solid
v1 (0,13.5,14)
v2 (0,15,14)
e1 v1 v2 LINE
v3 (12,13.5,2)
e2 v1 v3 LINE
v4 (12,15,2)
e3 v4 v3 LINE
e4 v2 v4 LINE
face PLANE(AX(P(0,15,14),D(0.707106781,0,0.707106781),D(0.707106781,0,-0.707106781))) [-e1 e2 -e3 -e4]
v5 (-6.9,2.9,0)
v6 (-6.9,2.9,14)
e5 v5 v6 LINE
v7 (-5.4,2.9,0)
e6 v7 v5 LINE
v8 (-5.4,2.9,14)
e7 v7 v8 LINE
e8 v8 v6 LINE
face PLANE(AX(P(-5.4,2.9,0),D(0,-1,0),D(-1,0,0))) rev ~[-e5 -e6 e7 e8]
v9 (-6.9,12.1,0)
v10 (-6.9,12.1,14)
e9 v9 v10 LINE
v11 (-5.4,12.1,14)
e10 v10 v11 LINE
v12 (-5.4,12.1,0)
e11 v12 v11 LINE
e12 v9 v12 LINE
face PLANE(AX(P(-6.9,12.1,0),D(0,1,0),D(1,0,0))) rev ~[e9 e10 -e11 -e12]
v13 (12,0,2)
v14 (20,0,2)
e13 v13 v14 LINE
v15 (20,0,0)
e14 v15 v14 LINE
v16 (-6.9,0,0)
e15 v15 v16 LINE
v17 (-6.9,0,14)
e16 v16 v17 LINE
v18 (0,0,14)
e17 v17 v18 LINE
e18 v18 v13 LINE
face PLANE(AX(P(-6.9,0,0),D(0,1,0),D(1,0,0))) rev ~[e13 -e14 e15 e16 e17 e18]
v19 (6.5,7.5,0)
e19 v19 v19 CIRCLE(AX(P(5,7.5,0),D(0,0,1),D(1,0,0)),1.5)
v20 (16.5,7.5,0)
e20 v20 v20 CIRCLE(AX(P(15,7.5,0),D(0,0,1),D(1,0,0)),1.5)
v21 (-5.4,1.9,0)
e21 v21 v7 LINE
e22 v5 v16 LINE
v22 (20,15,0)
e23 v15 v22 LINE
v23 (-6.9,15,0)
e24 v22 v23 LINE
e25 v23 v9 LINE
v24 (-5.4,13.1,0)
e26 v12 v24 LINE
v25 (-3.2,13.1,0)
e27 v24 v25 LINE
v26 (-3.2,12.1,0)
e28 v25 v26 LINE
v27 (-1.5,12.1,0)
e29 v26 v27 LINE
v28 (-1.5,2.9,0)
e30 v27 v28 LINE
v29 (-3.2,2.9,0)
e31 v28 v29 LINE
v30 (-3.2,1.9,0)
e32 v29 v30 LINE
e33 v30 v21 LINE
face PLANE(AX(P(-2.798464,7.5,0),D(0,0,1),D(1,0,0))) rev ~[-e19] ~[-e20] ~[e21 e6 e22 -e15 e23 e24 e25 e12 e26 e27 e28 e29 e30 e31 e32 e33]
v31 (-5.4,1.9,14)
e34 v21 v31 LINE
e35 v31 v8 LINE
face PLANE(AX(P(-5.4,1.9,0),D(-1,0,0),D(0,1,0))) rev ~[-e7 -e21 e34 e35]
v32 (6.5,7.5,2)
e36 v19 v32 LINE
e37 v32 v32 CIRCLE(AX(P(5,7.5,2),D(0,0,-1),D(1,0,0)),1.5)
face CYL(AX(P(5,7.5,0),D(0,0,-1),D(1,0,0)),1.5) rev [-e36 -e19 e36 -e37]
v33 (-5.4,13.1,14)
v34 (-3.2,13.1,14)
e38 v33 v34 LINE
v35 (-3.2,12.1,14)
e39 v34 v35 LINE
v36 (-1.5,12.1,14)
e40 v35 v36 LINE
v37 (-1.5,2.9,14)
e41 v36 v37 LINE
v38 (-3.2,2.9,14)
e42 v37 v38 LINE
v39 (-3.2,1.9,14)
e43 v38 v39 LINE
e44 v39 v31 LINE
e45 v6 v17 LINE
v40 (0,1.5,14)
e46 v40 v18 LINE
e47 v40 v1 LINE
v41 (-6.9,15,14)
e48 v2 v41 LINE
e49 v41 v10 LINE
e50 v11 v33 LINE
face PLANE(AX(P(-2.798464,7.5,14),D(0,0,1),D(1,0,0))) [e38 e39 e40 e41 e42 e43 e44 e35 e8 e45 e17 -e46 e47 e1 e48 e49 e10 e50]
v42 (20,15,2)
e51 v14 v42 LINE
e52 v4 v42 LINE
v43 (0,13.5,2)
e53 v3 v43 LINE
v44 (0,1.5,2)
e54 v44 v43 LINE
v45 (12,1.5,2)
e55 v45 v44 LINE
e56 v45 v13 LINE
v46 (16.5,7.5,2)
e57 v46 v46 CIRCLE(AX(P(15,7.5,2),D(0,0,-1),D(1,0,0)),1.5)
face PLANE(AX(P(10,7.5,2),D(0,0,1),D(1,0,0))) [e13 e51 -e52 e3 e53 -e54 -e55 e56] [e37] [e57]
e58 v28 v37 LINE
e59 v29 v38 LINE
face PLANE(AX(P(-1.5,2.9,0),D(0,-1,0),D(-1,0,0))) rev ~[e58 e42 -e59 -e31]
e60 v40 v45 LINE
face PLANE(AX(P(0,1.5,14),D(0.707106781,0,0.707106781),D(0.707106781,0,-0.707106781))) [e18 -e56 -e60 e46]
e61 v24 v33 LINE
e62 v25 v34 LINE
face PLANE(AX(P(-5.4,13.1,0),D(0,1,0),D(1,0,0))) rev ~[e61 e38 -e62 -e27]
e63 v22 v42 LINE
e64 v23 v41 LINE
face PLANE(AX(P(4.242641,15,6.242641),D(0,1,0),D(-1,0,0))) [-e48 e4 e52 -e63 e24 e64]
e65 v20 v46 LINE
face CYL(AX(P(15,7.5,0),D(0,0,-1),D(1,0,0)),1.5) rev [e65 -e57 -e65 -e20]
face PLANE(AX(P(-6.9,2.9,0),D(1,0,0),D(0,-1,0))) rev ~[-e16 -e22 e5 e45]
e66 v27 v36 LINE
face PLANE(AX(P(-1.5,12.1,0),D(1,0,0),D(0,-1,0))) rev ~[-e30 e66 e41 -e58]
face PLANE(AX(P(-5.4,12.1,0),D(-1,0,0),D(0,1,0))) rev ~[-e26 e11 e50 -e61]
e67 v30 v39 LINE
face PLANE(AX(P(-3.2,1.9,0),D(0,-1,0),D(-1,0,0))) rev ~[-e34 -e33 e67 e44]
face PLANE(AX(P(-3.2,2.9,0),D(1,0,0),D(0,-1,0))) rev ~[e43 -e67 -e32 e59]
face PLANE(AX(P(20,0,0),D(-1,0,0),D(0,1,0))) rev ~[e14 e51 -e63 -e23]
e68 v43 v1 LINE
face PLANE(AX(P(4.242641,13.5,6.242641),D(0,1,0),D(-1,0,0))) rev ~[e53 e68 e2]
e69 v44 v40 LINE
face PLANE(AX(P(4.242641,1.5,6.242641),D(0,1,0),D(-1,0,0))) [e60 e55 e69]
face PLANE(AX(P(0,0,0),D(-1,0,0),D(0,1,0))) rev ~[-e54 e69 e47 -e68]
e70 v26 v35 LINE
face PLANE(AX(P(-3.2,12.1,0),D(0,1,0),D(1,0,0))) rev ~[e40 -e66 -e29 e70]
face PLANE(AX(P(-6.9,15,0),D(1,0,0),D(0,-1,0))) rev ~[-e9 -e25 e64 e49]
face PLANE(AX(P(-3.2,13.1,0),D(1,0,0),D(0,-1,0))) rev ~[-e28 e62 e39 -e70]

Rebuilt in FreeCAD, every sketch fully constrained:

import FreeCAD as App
import Part
import Sketcher


def add_polygon(sketch, points):
    """Adds a closed chain of lines whose ends are joined by coincident constraints."""
    first, n = sketch.GeometryCount, len(points)
    for a, b in zip(points, points[1:] + points[:1]):
        sketch.addGeometry(Part.LineSegment(App.Vector(*a, 0), App.Vector(*b, 0)), False)
    for i in range(n):
        sketch.addConstraint(Sketcher.Constraint("Coincident", first + i, 2, first + (i + 1) % n, 1))

doc = App.newDocument("Part")
params = doc.addObject("Spreadsheet::Sheet", "Params")
for row, (alias, value) in enumerate([
    ("sketch1_diameter", "3 mm"),
    ("pad1_length", "10 mm"),
    ("sketch2_diameter", "3 mm"),
    ("pad2_length", "10 mm"),
    ("sketch3_width", "20 mm"),
    ("sketch3_height", "15 mm"),
    ("pad3_length", "2 mm"),
    ("sketch4_height", "1 mm"),
    ("sketch4_height2", "15 mm"),
    ("sketch4_width", "6.9 mm"),
    ("sketch4_width2", "1.5 mm"),
    ("sketch4_width3", "2.2 mm"),
    ("pad4_length", "14 mm"),
    ("sketch5_width", "12 mm"),
    ("pad5_length", "1.5 mm"),
    ("sketch6_width", "12 mm"),
    ("pad6_length", "1.5 mm"),
], start=1):
    params.set(f"A{row}", alias)
    params.set(f"B{row}", "=" + value)
    params.setAlias(f"B{row}", alias)

body = doc.addObject("PartDesign::Body", "Body")

# Sketch on XY plane
sketch1 = body.newObject("Sketcher::SketchObject", "Sketch")
sketch1.AttachmentSupport = (doc.getObject("XY_Plane"), [""])
sketch1.MapMode = "FlatFace"
sketch1.addGeometry(Part.Circle(App.Vector(15, 7.5, 0), App.Vector(0, 0, 1), 1.5), False)
sketch1.addConstraint([
    Sketcher.Constraint("Diameter", 0, 3.0),
    Sketcher.Constraint("DistanceX", -1, 1, 0, 3, 15.0),
    Sketcher.Constraint("DistanceY", -1, 1, 0, 3, 7.5),
])
sketch1.setExpression("Constraints[0]", "Params.sketch1_diameter")
pad1 = body.newObject("PartDesign::Pad", "Pad")
pad1.Profile = sketch1
pad1.setExpression("Length", "Params.pad1_length")
body2 = doc.addObject("PartDesign::Body", "Body001")

# Sketch on XY plane
sketch2 = body2.newObject("Sketcher::SketchObject", "Sketch001")
sketch2.AttachmentSupport = (doc.getObject("XY_Plane001"), [""])
sketch2.MapMode = "FlatFace"
sketch2.addGeometry(Part.Circle(App.Vector(5, 7.5, 0), App.Vector(0, 0, 1), 1.5), False)
sketch2.addConstraint([
    Sketcher.Constraint("Diameter", 0, 3.0),
    Sketcher.Constraint("DistanceX", -1, 1, 0, 3, 5.0),
    Sketcher.Constraint("DistanceY", -1, 1, 0, 3, 7.5),
])
sketch2.setExpression("Constraints[0]", "Params.sketch2_diameter")
pad2 = body2.newObject("PartDesign::Pad", "Pad001")
pad2.Profile = sketch2
pad2.setExpression("Length", "Params.pad2_length")
body3 = doc.addObject("PartDesign::Body", "Body002")

# Sketch on XY plane
sketch3 = body3.newObject("Sketcher::SketchObject", "Sketch002")
sketch3.AttachmentSupport = (doc.getObject("XY_Plane002"), [""])
sketch3.MapMode = "FlatFace"
add_polygon(sketch3, [(0, 15), (0, 0), (20, 0), (20, 15)])  # lines 0-3
sketch3.addConstraint([
    Sketcher.Constraint("Vertical", 0),
    Sketcher.Constraint("Horizontal", 1),
    Sketcher.Constraint("Vertical", 2),
    Sketcher.Constraint("Horizontal", 3),
    Sketcher.Constraint("Coincident", 0, 2, -1, 1),
    Sketcher.Constraint("DistanceX", 1, 1, 1, 2, 20.0),
    Sketcher.Constraint("DistanceY", 0, 2, 0, 1, 15.0),
])
sketch3.setExpression("Constraints[9]", "Params.sketch3_width")
sketch3.setExpression("Constraints[10]", "Params.sketch3_height")
pad3 = body3.newObject("PartDesign::Pad", "Pad002")
pad3.Profile = sketch3
pad3.setExpression("Length", "Params.pad3_length")
doc.recompute()

boolean = body3.newObject("PartDesign::Boolean", "Boolean")
boolean.Type = "Cut"
boolean.addObjects([body2])
doc.recompute()

boolean2 = body3.newObject("PartDesign::Boolean", "Boolean001")
boolean2.Type = "Cut"
boolean2.addObjects([body])
body4 = doc.addObject("PartDesign::Body", "Body003")

# Sketch on XY plane
sketch4 = body4.newObject("Sketcher::SketchObject", "Sketch003")
sketch4.AttachmentSupport = (doc.getObject("XY_Plane003"), [""])
sketch4.MapMode = "FlatFace"
add_polygon(sketch4, [(0, 15), (-6.9, 15), (-6.9, 12.1), (-5.4, 12.1), (-5.4, 13.1), (-3.2, 13.1), (-3.2, 12.1), (-1.5, 12.1), (-1.5, 2.9), (-3.2, 2.9), (-3.2, 1.9), (-5.4, 1.9), (-5.4, 2.9), (-6.9, 2.9), (-6.9, 0), (0, 0)])  # lines 0-15
sketch4.addConstraint([
    Sketcher.Constraint("Horizontal", 0),
    Sketcher.Constraint("Vertical", 1),
    Sketcher.Constraint("Horizontal", 2),
    Sketcher.Constraint("Vertical", 3),
    Sketcher.Constraint("Horizontal", 4),
    Sketcher.Constraint("Vertical", 5),
    Sketcher.Constraint("Horizontal", 6),
    Sketcher.Constraint("Vertical", 7),
    Sketcher.Constraint("Horizontal", 8),
    Sketcher.Constraint("Vertical", 9),
    Sketcher.Constraint("Horizontal", 10),
    Sketcher.Constraint("Vertical", 11),
    Sketcher.Constraint("Horizontal", 12),
    Sketcher.Constraint("Vertical", 13),
    Sketcher.Constraint("Horizontal", 14),
    Sketcher.Constraint("Vertical", 15),
    Sketcher.Constraint("Coincident", 14, 2, -1, 1),
    Sketcher.Constraint("Horizontal", 2, 2, 5, 2),
    Sketcher.Constraint("Horizontal", 8, 2, 11, 2),
    Sketcher.Constraint("Vertical", 5, 2, 8, 2),
    Sketcher.Constraint("Vertical", 3, 2, 10, 2),
    Sketcher.Constraint("Vertical", 1, 2, 12, 2),
    Sketcher.Constraint("Equal", 5, 9),
    Sketcher.Constraint("Equal", 1, 13),
    Sketcher.Constraint("DistanceY", 3, 1, 3, 2, 1.0),
    Sketcher.Constraint("DistanceY", 15, 1, 15, 2, 15.0),
    Sketcher.Constraint("DistanceX", 0, 2, 0, 1, 6.9),
    Sketcher.Constraint("DistanceX", 2, 1, 2, 2, 1.5),
    Sketcher.Constraint("DistanceX", 4, 1, 4, 2, 2.2),
    Sketcher.Constraint("DistanceX", 6, 1, 6, 2, 1.7),
    Sketcher.Constraint("DistanceY", 1, 2, 1, 1, 2.9),
])
sketch4.setExpression("Constraints[40]", "Params.sketch4_height")
sketch4.setExpression("Constraints[41]", "Params.sketch4_height2")
sketch4.setExpression("Constraints[42]", "Params.sketch4_width")
sketch4.setExpression("Constraints[43]", "Params.sketch4_width2")
sketch4.setExpression("Constraints[44]", "Params.sketch4_width3")
pad4 = body4.newObject("PartDesign::Pad", "Pad003")
pad4.Profile = sketch4
pad4.setExpression("Length", "Params.pad4_length")
body5 = doc.addObject("PartDesign::Body", "Body004")

# Sketch on XZ plane
sketch5 = body5.newObject("Sketcher::SketchObject", "Sketch004")
sketch5.AttachmentSupport = (doc.getObject("XZ_Plane004"), [""])
sketch5.MapMode = "FlatFace"
sketch5.AttachmentOffset = App.Placement(App.Vector(0, 0, -15), App.Rotation())
add_polygon(sketch5, [(12, 2), (0, 14), (0, 2)])  # lines 0-2
sketch5.addConstraint([
    Sketcher.Constraint("Vertical", 1),
    Sketcher.Constraint("Horizontal", 2),
    Sketcher.Constraint("PointOnObject", 0, 2, -2),
    Sketcher.Constraint("Equal", 2, 1),
    Sketcher.Constraint("DistanceX", 2, 1, 2, 2, 12.0),
    Sketcher.Constraint("DistanceY", -1, 1, 0, 2, 14.0),
])
sketch5.setExpression("Constraints[7]", "Params.sketch5_width")
pad5 = body5.newObject("PartDesign::Pad", "Pad004")
pad5.Profile = sketch5
pad5.setExpression("Length", "Params.pad5_length")
body6 = doc.addObject("PartDesign::Body", "Body005")

# Sketch on XZ plane
sketch6 = body6.newObject("Sketcher::SketchObject", "Sketch005")
sketch6.AttachmentSupport = (doc.getObject("XZ_Plane005"), [""])
sketch6.MapMode = "FlatFace"
sketch6.AttachmentOffset = App.Placement(App.Vector(0, 0, -1.5), App.Rotation())
add_polygon(sketch6, [(12, 2), (0, 14), (0, 2)])  # lines 0-2
sketch6.addConstraint([
    Sketcher.Constraint("Vertical", 1),
    Sketcher.Constraint("Horizontal", 2),
    Sketcher.Constraint("PointOnObject", 0, 2, -2),
    Sketcher.Constraint("Equal", 2, 1),
    Sketcher.Constraint("DistanceX", 2, 1, 2, 2, 12.0),
    Sketcher.Constraint("DistanceY", -1, 1, 0, 2, 14.0),
])
sketch6.setExpression("Constraints[7]", "Params.sketch6_width")
pad6 = body6.newObject("PartDesign::Pad", "Pad005")
pad6.Profile = sketch6
pad6.setExpression("Length", "Params.pad6_length")
doc.recompute()

boolean3 = body6.newObject("PartDesign::Boolean", "Boolean002")
boolean3.Type = "Fuse"
boolean3.addObjects([body3])
doc.recompute()

boolean4 = body6.newObject("PartDesign::Boolean", "Boolean003")
boolean4.Type = "Fuse"
boolean4.addObjects([body4])
doc.recompute()

boolean5 = body6.newObject("PartDesign::Boolean", "Boolean004")
boolean5.Type = "Fuse"
boolean5.addObjects([body5])

doc.recompute()
